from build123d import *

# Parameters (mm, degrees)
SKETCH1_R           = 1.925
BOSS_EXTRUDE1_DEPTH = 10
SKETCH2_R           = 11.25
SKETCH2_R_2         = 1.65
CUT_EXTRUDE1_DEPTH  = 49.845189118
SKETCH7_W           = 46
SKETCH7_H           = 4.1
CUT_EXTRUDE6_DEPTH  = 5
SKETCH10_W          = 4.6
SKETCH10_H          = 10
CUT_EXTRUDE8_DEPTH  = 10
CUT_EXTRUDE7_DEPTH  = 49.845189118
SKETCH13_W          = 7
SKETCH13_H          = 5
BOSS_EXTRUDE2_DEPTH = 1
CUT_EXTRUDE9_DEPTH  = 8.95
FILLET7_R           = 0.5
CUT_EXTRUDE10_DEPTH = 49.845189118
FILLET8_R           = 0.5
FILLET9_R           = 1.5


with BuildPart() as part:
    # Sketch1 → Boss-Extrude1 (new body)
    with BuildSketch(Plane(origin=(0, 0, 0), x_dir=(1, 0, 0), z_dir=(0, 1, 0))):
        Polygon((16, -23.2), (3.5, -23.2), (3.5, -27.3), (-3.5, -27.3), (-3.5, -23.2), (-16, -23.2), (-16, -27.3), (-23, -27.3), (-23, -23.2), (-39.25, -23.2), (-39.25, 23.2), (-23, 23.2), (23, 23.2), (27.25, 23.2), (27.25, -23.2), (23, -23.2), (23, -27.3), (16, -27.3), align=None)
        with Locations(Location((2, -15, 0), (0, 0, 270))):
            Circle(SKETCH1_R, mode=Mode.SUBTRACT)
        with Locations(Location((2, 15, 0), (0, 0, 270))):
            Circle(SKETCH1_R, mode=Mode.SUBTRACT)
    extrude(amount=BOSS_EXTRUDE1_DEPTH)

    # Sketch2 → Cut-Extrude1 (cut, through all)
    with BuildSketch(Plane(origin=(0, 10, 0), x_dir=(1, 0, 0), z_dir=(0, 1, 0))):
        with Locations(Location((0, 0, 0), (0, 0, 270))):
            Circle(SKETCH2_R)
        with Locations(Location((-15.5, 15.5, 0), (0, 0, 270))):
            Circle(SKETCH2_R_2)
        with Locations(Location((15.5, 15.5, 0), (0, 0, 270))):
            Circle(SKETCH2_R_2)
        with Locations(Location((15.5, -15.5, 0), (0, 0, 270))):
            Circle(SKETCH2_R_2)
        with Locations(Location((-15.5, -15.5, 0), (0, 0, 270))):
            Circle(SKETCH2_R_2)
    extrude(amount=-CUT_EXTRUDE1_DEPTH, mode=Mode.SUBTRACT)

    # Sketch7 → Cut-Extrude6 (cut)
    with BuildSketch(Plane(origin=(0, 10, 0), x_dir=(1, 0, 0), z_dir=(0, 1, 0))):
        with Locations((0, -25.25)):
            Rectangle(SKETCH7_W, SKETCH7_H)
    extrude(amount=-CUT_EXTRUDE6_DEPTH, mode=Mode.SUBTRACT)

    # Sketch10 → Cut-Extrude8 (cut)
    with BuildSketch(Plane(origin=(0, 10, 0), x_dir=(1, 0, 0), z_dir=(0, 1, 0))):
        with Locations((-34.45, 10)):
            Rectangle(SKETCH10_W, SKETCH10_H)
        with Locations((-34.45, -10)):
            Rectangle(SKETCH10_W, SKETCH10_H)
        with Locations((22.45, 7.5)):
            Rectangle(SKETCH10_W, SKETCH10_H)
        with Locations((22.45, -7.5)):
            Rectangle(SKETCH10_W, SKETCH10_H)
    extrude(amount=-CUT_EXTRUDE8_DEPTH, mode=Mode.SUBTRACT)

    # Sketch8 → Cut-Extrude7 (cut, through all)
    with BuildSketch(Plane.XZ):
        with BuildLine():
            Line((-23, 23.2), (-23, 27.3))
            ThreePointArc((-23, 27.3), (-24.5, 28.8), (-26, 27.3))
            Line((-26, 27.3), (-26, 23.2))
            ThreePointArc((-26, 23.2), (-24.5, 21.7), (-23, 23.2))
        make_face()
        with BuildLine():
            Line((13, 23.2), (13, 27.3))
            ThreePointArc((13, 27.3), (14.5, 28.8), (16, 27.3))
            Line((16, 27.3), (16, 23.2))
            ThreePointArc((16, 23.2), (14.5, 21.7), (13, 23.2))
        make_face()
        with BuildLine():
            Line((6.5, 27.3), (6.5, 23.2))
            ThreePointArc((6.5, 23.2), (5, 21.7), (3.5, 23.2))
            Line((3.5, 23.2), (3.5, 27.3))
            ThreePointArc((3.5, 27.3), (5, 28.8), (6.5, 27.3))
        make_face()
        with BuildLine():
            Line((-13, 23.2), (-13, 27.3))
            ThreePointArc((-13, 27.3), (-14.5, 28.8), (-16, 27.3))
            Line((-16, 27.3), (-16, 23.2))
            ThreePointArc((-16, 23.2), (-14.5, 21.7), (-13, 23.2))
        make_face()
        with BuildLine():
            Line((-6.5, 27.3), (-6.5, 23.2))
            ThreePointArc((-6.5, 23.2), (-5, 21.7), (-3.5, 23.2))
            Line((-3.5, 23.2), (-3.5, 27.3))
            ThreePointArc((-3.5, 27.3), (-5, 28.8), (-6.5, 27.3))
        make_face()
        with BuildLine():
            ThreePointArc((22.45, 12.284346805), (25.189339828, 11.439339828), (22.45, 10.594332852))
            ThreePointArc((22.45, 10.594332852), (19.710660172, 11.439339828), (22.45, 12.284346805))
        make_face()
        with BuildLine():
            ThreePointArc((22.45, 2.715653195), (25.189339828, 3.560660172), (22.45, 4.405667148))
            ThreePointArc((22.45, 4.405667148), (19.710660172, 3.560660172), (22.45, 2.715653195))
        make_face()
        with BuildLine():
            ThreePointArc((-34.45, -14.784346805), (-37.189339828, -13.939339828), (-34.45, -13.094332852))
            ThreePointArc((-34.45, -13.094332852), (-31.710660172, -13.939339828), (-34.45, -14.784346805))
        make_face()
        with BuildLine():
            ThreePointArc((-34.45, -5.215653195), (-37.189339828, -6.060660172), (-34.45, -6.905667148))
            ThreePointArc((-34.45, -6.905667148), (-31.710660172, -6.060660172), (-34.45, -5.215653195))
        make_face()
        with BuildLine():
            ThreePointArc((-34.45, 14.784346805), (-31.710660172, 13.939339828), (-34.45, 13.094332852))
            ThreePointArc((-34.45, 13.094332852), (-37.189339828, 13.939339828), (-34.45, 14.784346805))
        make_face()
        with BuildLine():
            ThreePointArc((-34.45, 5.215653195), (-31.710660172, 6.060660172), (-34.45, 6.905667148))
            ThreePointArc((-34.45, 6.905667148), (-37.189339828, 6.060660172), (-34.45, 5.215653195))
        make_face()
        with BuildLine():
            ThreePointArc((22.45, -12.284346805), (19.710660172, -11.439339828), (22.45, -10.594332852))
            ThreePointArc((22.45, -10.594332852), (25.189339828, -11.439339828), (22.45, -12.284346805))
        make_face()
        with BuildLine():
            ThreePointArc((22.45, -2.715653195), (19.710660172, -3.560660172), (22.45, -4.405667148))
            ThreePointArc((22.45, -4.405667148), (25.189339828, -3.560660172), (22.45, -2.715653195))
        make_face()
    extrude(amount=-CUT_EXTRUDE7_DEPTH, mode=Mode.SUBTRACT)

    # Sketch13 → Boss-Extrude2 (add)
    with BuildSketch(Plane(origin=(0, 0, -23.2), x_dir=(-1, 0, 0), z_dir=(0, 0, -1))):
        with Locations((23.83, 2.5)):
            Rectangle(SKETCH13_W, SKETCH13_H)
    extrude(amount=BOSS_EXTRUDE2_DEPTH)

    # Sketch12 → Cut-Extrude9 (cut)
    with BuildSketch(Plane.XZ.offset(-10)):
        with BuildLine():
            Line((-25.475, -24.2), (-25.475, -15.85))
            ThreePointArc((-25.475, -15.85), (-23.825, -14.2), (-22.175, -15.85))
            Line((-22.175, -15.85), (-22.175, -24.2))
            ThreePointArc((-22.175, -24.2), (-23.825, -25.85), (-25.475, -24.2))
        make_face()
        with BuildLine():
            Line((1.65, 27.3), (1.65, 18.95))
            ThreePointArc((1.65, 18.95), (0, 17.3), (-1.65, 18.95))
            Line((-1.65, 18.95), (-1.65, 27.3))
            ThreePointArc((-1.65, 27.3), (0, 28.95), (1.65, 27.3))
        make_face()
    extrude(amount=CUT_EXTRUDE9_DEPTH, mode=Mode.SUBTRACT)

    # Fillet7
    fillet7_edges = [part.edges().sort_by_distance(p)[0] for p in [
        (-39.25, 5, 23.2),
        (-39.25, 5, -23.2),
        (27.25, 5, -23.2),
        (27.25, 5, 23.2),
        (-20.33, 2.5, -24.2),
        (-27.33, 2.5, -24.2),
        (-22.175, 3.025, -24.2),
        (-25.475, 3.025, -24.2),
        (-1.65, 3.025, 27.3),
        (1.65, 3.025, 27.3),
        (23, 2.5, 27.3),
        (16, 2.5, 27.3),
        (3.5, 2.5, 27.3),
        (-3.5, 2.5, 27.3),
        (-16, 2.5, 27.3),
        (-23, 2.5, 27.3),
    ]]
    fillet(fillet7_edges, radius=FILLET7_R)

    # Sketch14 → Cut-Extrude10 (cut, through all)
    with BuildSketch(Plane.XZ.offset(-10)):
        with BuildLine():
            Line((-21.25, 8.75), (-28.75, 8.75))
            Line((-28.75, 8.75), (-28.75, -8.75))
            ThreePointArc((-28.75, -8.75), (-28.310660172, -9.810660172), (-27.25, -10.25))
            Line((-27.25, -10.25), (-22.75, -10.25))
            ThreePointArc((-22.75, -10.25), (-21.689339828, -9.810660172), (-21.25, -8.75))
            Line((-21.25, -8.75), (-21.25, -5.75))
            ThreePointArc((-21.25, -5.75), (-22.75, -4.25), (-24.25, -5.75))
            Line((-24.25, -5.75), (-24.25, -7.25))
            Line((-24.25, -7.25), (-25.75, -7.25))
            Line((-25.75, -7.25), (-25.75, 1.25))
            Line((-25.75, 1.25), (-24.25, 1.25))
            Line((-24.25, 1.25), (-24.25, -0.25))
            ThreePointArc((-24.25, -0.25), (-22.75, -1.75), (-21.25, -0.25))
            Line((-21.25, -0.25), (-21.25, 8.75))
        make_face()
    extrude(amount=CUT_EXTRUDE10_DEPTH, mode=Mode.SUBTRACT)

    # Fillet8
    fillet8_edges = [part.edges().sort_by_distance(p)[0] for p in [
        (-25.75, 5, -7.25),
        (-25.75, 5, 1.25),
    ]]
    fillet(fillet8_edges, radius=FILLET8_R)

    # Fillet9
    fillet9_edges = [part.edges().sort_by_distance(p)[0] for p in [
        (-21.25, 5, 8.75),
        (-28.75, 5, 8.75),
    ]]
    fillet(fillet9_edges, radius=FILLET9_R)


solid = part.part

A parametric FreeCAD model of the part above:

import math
import FreeCAD as App
import Part
import Sketcher

V = App.Vector


def edges_at(feature, points):
    """Names of the edges that pass closest to the given points."""
    edges = feature.Shape.Edges
    near = lambda p: min(range(len(edges)), key=lambda i: edges[i].distToShape(Part.Vertex(*p))[0])
    return sorted({f"Edge{near(p) + 1}" for p in points})

doc = App.newDocument("Part")
body = doc.addObject("PartDesign::Body", "Body")

# Sketch on XZ plane
sketch1 = body.newObject("Sketcher::SketchObject", "Sketch")
sketch1.AttachmentSupport = (doc.getObject("XZ_Plane"), [""])
sketch1.MapMode = "FlatFace"
sketch1.addGeometry(Part.LineSegment(V(3.5, 23.2, 0), V(16, 23.2, 0)), False)
sketch1.addGeometry(Part.LineSegment(V(16, 23.2, 0), V(16, 27.3, 0)), False)
sketch1.addGeometry(Part.LineSegment(V(16, 27.3, 0), V(23, 27.3, 0)), False)
sketch1.addGeometry(Part.LineSegment(V(23, 27.3, 0), V(23, 23.2, 0)), False)
sketch1.addGeometry(Part.LineSegment(V(23, 23.2, 0), V(27.2, 23.2, 0)), False)
sketch1.addGeometry(Part.LineSegment(V(27.2, 23.2, 0), V(27.2, -23.2, 0)), False)
sketch1.addGeometry(Part.LineSegment(V(27.2, -23.2, 0), V(-39.2, -23.2, 0)), False)
sketch1.addGeometry(Part.LineSegment(V(-39.2, -23.2, 0), V(-39.2, 23.2, 0)), False)
sketch1.addGeometry(Part.LineSegment(V(-39.2, 23.2, 0), V(-23, 23.2, 0)), False)
sketch1.addGeometry(Part.LineSegment(V(-23, 23.2, 0), V(-23, 27.3, 0)), False)
sketch1.addGeometry(Part.LineSegment(V(-23, 27.3, 0), V(-16, 27.3, 0)), False)
sketch1.addGeometry(Part.LineSegment(V(-16, 27.3, 0), V(-16, 23.2, 0)), False)
sketch1.addGeometry(Part.LineSegment(V(-16, 23.2, 0), V(-3.5, 23.2, 0)), False)
sketch1.addGeometry(Part.LineSegment(V(-3.5, 23.2, 0), V(-3.5, 27.3, 0)), False)
sketch1.addGeometry(Part.LineSegment(V(-3.5, 27.3, 0), V(3.5, 27.3, 0)), False)
sketch1.addGeometry(Part.LineSegment(V(3.5, 27.3, 0), V(3.5, 23.2, 0)), False)
sketch1.addGeometry(Part.Circle(V(2, 15, 0), V(0, 0, 1), 1.9), False)
sketch1.addGeometry(Part.Circle(V(2, -15, 0), V(0, 0, 1), 1.9), False)
sketch1.addConstraint(Sketcher.Constraint("Coincident", 0, 2, 1, 1))
sketch1.addConstraint(Sketcher.Constraint("Coincident", 1, 2, 2, 1))
sketch1.addConstraint(Sketcher.Constraint("Coincident", 2, 2, 3, 1))
sketch1.addConstraint(Sketcher.Constraint("Coincident", 3, 2, 4, 1))
sketch1.addConstraint(Sketcher.Constraint("Coincident", 4, 2, 5, 1))
sketch1.addConstraint(Sketcher.Constraint("Coincident", 5, 2, 6, 1))
sketch1.addConstraint(Sketcher.Constraint("Coincident", 6, 2, 7, 1))
sketch1.addConstraint(Sketcher.Constraint("Coincident", 7, 2, 8, 1))
sketch1.addConstraint(Sketcher.Constraint("Coincident", 8, 2, 9, 1))
sketch1.addConstraint(Sketcher.Constraint("Coincident", 9, 2, 10, 1))
sketch1.addConstraint(Sketcher.Constraint("Coincident", 10, 2, 11, 1))
sketch1.addConstraint(Sketcher.Constraint("Coincident", 11, 2, 12, 1))
sketch1.addConstraint(Sketcher.Constraint("Coincident", 12, 2, 13, 1))
sketch1.addConstraint(Sketcher.Constraint("Coincident", 13, 2, 14, 1))
sketch1.addConstraint(Sketcher.Constraint("Coincident", 14, 2, 15, 1))
sketch1.addConstraint(Sketcher.Constraint("Coincident", 15, 2, 0, 1))
sketch1.addConstraint(Sketcher.Constraint("Horizontal", 0))
sketch1.addConstraint(Sketcher.Constraint("Vertical", 1))
sketch1.addConstraint(Sketcher.Constraint("Horizontal", 2))
sketch1.addConstraint(Sketcher.Constraint("Vertical", 3))
sketch1.addConstraint(Sketcher.Constraint("Horizontal", 4))
sketch1.addConstraint(Sketcher.Constraint("Vertical", 5))
sketch1.addConstraint(Sketcher.Constraint("Horizontal", 6))
sketch1.addConstraint(Sketcher.Constraint("Vertical", 7))
sketch1.addConstraint(Sketcher.Constraint("Horizontal", 8))
sketch1.addConstraint(Sketcher.Constraint("Vertical", 9))
sketch1.addConstraint(Sketcher.Constraint("Horizontal", 10))
sketch1.addConstraint(Sketcher.Constraint("Vertical", 11))
sketch1.addConstraint(Sketcher.Constraint("Horizontal", 12))
sketch1.addConstraint(Sketcher.Constraint("Vertical", 13))
sketch1.addConstraint(Sketcher.Constraint("Horizontal", 14))
sketch1.addConstraint(Sketcher.Constraint("Vertical", 15))
sketch1.addConstraint(Sketcher.Constraint("Equal", 16, 17))
sketch1.addConstraint(Sketcher.Constraint("Symmetric", 3, 2, 8, 2, -2))
sketch1.addConstraint(Sketcher.Constraint("Symmetric", 1, 2, 10, 2, -2))
sketch1.addConstraint(Sketcher.Constraint("Symmetric", 12, 2, 15, 2, -2))
sketch1.addConstraint(Sketcher.Constraint("Symmetric", 16, 3, 17, 3, -1))
sketch1.addConstraint(Sketcher.Constraint("Horizontal", 0, 2, 3, 2))
sketch1.addConstraint(Sketcher.Constraint("Horizontal", 10, 2, 13, 2))
sketch1.addConstraint(Sketcher.Constraint("Equal", 10, 14))
sketch1.addConstraint(Sketcher.Constraint("Diameter", 16, 3.85))
sketch1.addConstraint(Sketcher.Constraint("DistanceX", 2, 1, 2, 2, 7.0))
sketch1.addConstraint(Sketcher.Constraint("DistanceX", 0, 1, 0, 2, 12.5))
sketch1.addConstraint(Sketcher.Constraint("DistanceX", 6, 2, 6, 1, 66.5))
sketch1.addConstraint(Sketcher.Constraint("DistanceY", 1, 1, 1, 2, 4.1))
sketch1.addConstraint(Sketcher.Constraint("DistanceY", 5, 2, 5, 1, 46.4))
sketch1.addConstraint(Sketcher.Constraint("DistanceX", -1, 1, 16, 3, 2.0))
sketch1.addConstraint(Sketcher.Constraint("DistanceY", -1, 1, 16, 3, 15.0))
sketch1.addConstraint(Sketcher.Constraint("DistanceX", 4, 1, 4, 2, 4.25))
sketch1.addConstraint(Sketcher.Constraint("DistanceY", -1, 1, 0, 2, 23.2))
pad1 = body.newObject("PartDesign::Pad", "Pad")
pad1.Profile = sketch1
pad1.Length = 10
pad1.Reversed = True

# Sketch on XZ plane
sketch2 = body.newObject("Sketcher::SketchObject", "Sketch001")
sketch2.AttachmentSupport = (doc.getObject("XZ_Plane"), [""])
sketch2.MapMode = "FlatFace"
sketch2.AttachmentOffset = App.Placement(V(0, 0, -10), App.Rotation())
sketch2.addGeometry(Part.Circle(V(0, 0, 0), V(0, 0, 1), 11.2), False)
sketch2.addGeometry(Part.Circle(V(-15.5, -15.5, 0), V(0, 0, 1), 1.6), False)
sketch2.addGeometry(Part.Circle(V(15.5, -15.5, 0), V(0, 0, 1), 1.6), False)
sketch2.addGeometry(Part.Circle(V(15.5, 15.5, 0), V(0, 0, 1), 1.6), False)
sketch2.addGeometry(Part.Circle(V(-15.5, 15.5, 0), V(0, 0, 1), 1.6), False)
sketch2.addConstraint(Sketcher.Constraint("Coincident", 0, 3, -1, 1))
sketch2.addConstraint(Sketcher.Constraint("Equal", 1, 2))
sketch2.addConstraint(Sketcher.Constraint("Equal", 2, 3))
sketch2.addConstraint(Sketcher.Constraint("Equal", 3, 4))
sketch2.addConstraint(Sketcher.Constraint("Symmetric", 1, 3, 3, 3, -1, 1))
sketch2.addConstraint(Sketcher.Constraint("Symmetric", 2, 3, 4, 3, -1, 1))
sketch2.addConstraint(Sketcher.Constraint("Symmetric", 1, 3, 2, 3, -2))
sketch2.addConstraint(Sketcher.Constraint("Diameter", 0, 22.5))
sketch2.addConstraint(Sketcher.Constraint("Diameter", 1, 3.3))
sketch2.addConstraint(Sketcher.Constraint("DistanceX", 1, 3, 2, 3, 31.0))
sketch2.addConstraint(Sketcher.Constraint("DistanceY", 2, 3, 3, 3, 31.0))
pocket1 = body.newObject("PartDesign::Pocket", "Pocket")
pocket1.Profile = sketch2
pocket1.Type = "ThroughAll"
pocket1.Reversed = True

# Sketch on XZ plane
sketch3 = body.newObject("Sketcher::SketchObject", "Sketch002")
sketch3.AttachmentSupport = (doc.getObject("XZ_Plane"), [""])
sketch3.MapMode = "FlatFace"
sketch3.AttachmentOffset = App.Placement(V(0, 0, -10), App.Rotation())
sketch3.addGeometry(Part.LineSegment(V(-23, 23.2, 0), V(-23, 27.3, 0)), False)
sketch3.addGeometry(Part.LineSegment(V(-23, 27.3, 0), V(23, 27.3, 0)), False)
sketch3.addGeometry(Part.LineSegment(V(23, 27.3, 0), V(23, 23.2, 0)), False)
sketch3.addGeometry(Part.LineSegment(V(23, 23.2, 0), V(-23, 23.2, 0)), False)
sketch3.addConstraint(Sketcher.Constraint("Coincident", 0, 2, 1, 1))
sketch3.addConstraint(Sketcher.Constraint("Coincident", 1, 2, 2, 1))
sketch3.addConstraint(Sketcher.Constraint("Coincident", 2, 2, 3, 1))
sketch3.addConstraint(Sketcher.Constraint("Coincident", 3, 2, 0, 1))
sketch3.addConstraint(Sketcher.Constraint("Vertical", 0))
sketch3.addConstraint(Sketcher.Constraint("Horizontal", 1))
sketch3.addConstraint(Sketcher.Constraint("Vertical", 2))
sketch3.addConstraint(Sketcher.Constraint("Horizontal", 3))
sketch3.addConstraint(Sketcher.Constraint("DistanceX", 1, 1, 1, 2, 46.0))
sketch3.addConstraint(Sketcher.Constraint("DistanceY", 0, 1, 0, 2, 4.1))
sketch3.addConstraint(Sketcher.Constraint("DistanceX", 0, 2, -1, 1, 23.0))
sketch3.addConstraint(Sketcher.Constraint("DistanceY", -1, 1, 0, 2, 27.3))
pocket2 = body.newObject("PartDesign::Pocket", "Pocket001")
pocket2.Profile = sketch3
pocket2.Length = 5
pocket2.Reversed = True

# Sketch on XZ plane
sketch4 = body.newObject("Sketcher::SketchObject", "Sketch003")
sketch4.AttachmentSupport = (doc.getObject("XZ_Plane"), [""])
sketch4.MapMode = "FlatFace"
sketch4.AttachmentOffset = App.Placement(V(0, 0, -10), App.Rotation())
sketch4.addGeometry(Part.LineSegment(V(-36.8, -15, 0), V(-36.8, -5, 0)), False)
sketch4.addGeometry(Part.LineSegment(V(-36.8, -5, 0), V(-32.1, -5, 0)), False)
sketch4.addGeometry(Part.LineSegment(V(-32.1, -5, 0), V(-32.1, -15, 0)), False)
sketch4.addGeometry(Part.LineSegment(V(-32.1, -15, 0), V(-36.8, -15, 0)), False)
sketch4.addGeometry(Part.LineSegment(V(-36.8, 5, 0), V(-36.8, 15, 0)), False)
sketch4.addGeometry(Part.LineSegment(V(-36.8, 15, 0), V(-32.1, 15, 0)), False)
sketch4.addGeometry(Part.LineSegment(V(-32.1, 15, 0), V(-32.1, 5, 0)), False)
sketch4.addGeometry(Part.LineSegment(V(-32.1, 5, 0), V(-36.8, 5, 0)), False)
sketch4.addGeometry(Part.LineSegment(V(20.1, -12.5, 0), V(20.1, -2.5, 0)), False)
sketch4.addGeometry(Part.LineSegment(V(20.1, -2.5, 0), V(24.8, -2.5, 0)), False)
sketch4.addGeometry(Part.LineSegment(V(24.8, -2.5, 0), V(24.8, -12.5, 0)), False)
sketch4.addGeometry(Part.LineSegment(V(24.8, -12.5, 0), V(20.1, -12.5, 0)), False)
sketch4.addGeometry(Part.LineSegment(V(20.1, 2.5, 0), V(20.1, 12.5, 0)), False)
sketch4.addGeometry(Part.LineSegment(V(20.1, 12.5, 0), V(24.8, 12.5, 0)), False)
sketch4.addGeometry(Part.LineSegment(V(24.8, 12.5, 0), V(24.8, 2.5, 0)), False)
sketch4.addGeometry(Part.LineSegment(V(24.8, 2.5, 0), V(20.1, 2.5, 0)), False)
sketch4.addConstraint(Sketcher.Constraint("Coincident", 0, 2, 1, 1))
sketch4.addConstraint(Sketcher.Constraint("Coincident", 1, 2, 2, 1))
sketch4.addConstraint(Sketcher.Constraint("Coincident", 2, 2, 3, 1))
sketch4.addConstraint(Sketcher.Constraint("Coincident", 3, 2, 0, 1))
sketch4.addConstraint(Sketcher.Constraint("Coincident", 4, 2, 5, 1))
sketch4.addConstraint(Sketcher.Constraint("Coincident", 5, 2, 6, 1))
sketch4.addConstraint(Sketcher.Constraint("Coincident", 6, 2, 7, 1))
sketch4.addConstraint(Sketcher.Constraint("Coincident", 7, 2, 4, 1))
sketch4.addConstraint(Sketcher.Constraint("Coincident", 8, 2, 9, 1))
sketch4.addConstraint(Sketcher.Constraint("Coincident", 9, 2, 10, 1))
sketch4.addConstraint(Sketcher.Constraint("Coincident", 10, 2, 11, 1))
sketch4.addConstraint(Sketcher.Constraint("Coincident", 11, 2, 8, 1))
sketch4.addConstraint(Sketcher.Constraint("Coincident", 12, 2, 13, 1))
sketch4.addConstraint(Sketcher.Constraint("Coincident", 13, 2, 14, 1))
sketch4.addConstraint(Sketcher.Constraint("Coincident", 14, 2, 15, 1))
sketch4.addConstraint(Sketcher.Constraint("Coincident", 15, 2, 12, 1))
sketch4.addConstraint(Sketcher.Constraint("Vertical", 0))
sketch4.addConstraint(Sketcher.Constraint("Horizontal", 1))
sketch4.addConstraint(Sketcher.Constraint("Vertical", 2))
sketch4.addConstraint(Sketcher.Constraint("Horizontal", 3))
sketch4.addConstraint(Sketcher.Constraint("Vertical", 4))
sketch4.addConstraint(Sketcher.Constraint("Horizontal", 5))
sketch4.addConstraint(Sketcher.Constraint("Vertical", 6))
sketch4.addConstraint(Sketcher.Constraint("Horizontal", 7))
sketch4.addConstraint(Sketcher.Constraint("Vertical", 8))
sketch4.addConstraint(Sketcher.Constraint("Horizontal", 9))
sketch4.addConstraint(Sketcher.Constraint("Vertical", 10))
sketch4.addConstraint(Sketcher.Constraint("Horizontal", 11))
sketch4.addConstraint(Sketcher.Constraint("Vertical", 12))
sketch4.addConstraint(Sketcher.Constraint("Horizontal", 13))
sketch4.addConstraint(Sketcher.Constraint("Vertical", 14))
sketch4.addConstraint(Sketcher.Constraint("Horizontal", 15))
sketch4.addConstraint(Sketcher.Constraint("Symmetric", 3, 2, 4, 2, -1))
sketch4.addConstraint(Sketcher.Constraint("Symmetric", 1, 2, 6, 2, -1))
sketch4.addConstraint(Sketcher.Constraint("Symmetric", 11, 2, 12, 2, -1))
sketch4.addConstraint(Sketcher.Constraint("Symmetric", 9, 2, 14, 2, -1))
sketch4.addConstraint(Sketcher.Constraint("Equal", 7, 9))
sketch4.addConstraint(Sketcher.Constraint("Equal", 6, 8))
sketch4.addConstraint(Sketcher.Constraint("DistanceY", 0, 1, 0, 2, 10.0))
sketch4.addConstraint(Sketcher.Constraint("DistanceX", 1, 1, 1, 2, 4.6))
sketch4.addConstraint(Sketcher.Constraint("DistanceY", 0, 2, -1, 1, 5.0))
sketch4.addConstraint(Sketcher.Constraint("DistanceY", 8, 2, 12, 2, 15.0))
sketch4.addConstraint(Sketcher.Constraint("DistanceX", 1, 2, 8, 2, 52.3))
sketch4.addConstraint(Sketcher.Constraint("DistanceX", 0, 2, -1, 1, 36.75))
pocket3 = body.newObject("PartDesign::Pocket", "Pocket002")
pocket3.Profile = sketch4
pocket3.Length = 10
pocket3.Reversed = True

# Sketch on XZ plane
sketch5 = body.newObject("Sketcher::SketchObject", "Sketch004")
sketch5.AttachmentSupport = (doc.getObject("XZ_Plane"), [""])
sketch5.MapMode = "FlatFace"
sketch5.addGeometry(Part.LineSegment(V(-23, 23.2, 0), V(-23, 27.3, 0)), False)
sketch5.addGeometry(Part.ArcOfCircle(Part.Circle(V(-24.5, 27.3, 0), V(0, 0, 1), 1.5), math.radians(0), math.radians(180)), False)
sketch5.addGeometry(Part.LineSegment(V(-26, 27.3, 0), V(-26, 23.2, 0)), False)
sketch5.addGeometry(Part.ArcOfCircle(Part.Circle(V(-24.5, 23.2, 0), V(0, 0, 1), 1.5), math.radians(180), math.radians(360)), False)
sketch5.addGeometry(Part.LineSegment(V(13, 27.3, 0), V(13, 23.2, 0)), False)
sketch5.addGeometry(Part.ArcOfCircle(Part.Circle(V(14.5, 23.2, 0), V(0, 0, 1), 1.5), math.radians(180), math.radians(360)), False)
sketch5.addGeometry(Part.LineSegment(V(16, 23.2, 0), V(16, 27.3, 0)), False)
sketch5.addGeometry(Part.ArcOfCircle(Part.Circle(V(14.5, 27.3, 0), V(0, 0, 1), 1.5), math.radians(0), math.radians(180)), False)
sketch5.addGeometry(Part.LineSegment(V(6.5, 23.2, 0), V(6.5, 27.3, 0)), False)
sketch5.addGeometry(Part.ArcOfCircle(Part.Circle(V(5, 27.3, 0), V(0, 0, 1), 1.5), math.radians(0), math.radians(180)), False)
sketch5.addGeometry(Part.LineSegment(V(3.5, 27.3, 0), V(3.5, 23.2, 0)), False)
sketch5.addGeometry(Part.ArcOfCircle(Part.Circle(V(5, 23.2, 0), V(0, 0, 1), 1.5), math.radians(180), math.radians(360)), False)
sketch5.addGeometry(Part.LineSegment(V(-13, 23.2, 0), V(-13, 27.3, 0)), False)
sketch5.addGeometry(Part.ArcOfCircle(Part.Circle(V(-14.5, 27.3, 0), V(0, 0, 1), 1.5), math.radians(0), math.radians(180)), False)
sketch5.addGeometry(Part.LineSegment(V(-16, 27.3, 0), V(-16, 23.2, 0)), False)
sketch5.addGeometry(Part.ArcOfCircle(Part.Circle(V(-14.5, 23.2, 0), V(0, 0, 1), 1.5), math.radians(180), math.radians(360)), False)
sketch5.addGeometry(Part.LineSegment(V(-6.5, 27.3, 0), V(-6.5, 23.2, 0)), False)
sketch5.addGeometry(Part.ArcOfCircle(Part.Circle(V(-5, 23.2, 0), V(0, 0, 1), 1.5), math.radians(180), math.radians(360)), False)
sketch5.addGeometry(Part.LineSegment(V(-3.5, 23.2, 0), V(-3.5, 27.3, 0)), False)
sketch5.addGeometry(Part.ArcOfCircle(Part.Circle(V(-5, 27.3, 0), V(0, 0, 1), 1.5), math.radians(0), math.radians(180)), False)
sketch5.addGeometry(Part.ArcOfCircle(Part.Circle(V(23.7, 11.4, 0), V(0, 0, 1), 1.5), math.radians(-146), math.radians(146)), False)
sketch5.addGeometry(Part.ArcOfCircle(Part.Circle(V(21.2, 11.4, 0), V(0, 0, 1), 1.5), math.radians(34), math.radians(326)), False)
sketch5.addGeometry(Part.ArcOfCircle(Part.Circle(V(23.7, 3.6, 0), V(0, 0, 1), 1.5), math.radians(-146), math.radians(146)), False)
sketch5.addGeometry(Part.ArcOfCircle(Part.Circle(V(21.2, 3.6, 0), V(0, 0, 1), 1.5), math.radians(34), math.radians(326)), False)
sketch5.addGeometry(Part.ArcOfCircle(Part.Circle(V(-35.7, -13.9, 0), V(0, 0, 1), 1.5), math.radians(34), math.radians(326)), False)
sketch5.addGeometry(Part.ArcOfCircle(Part.Circle(V(-33.2, -13.9, 0), V(0, 0, 1), 1.5), math.radians(-146), math.radians(146)), False)
sketch5.addGeometry(Part.ArcOfCircle(Part.Circle(V(-35.7, -6.1, 0), V(0, 0, 1), 1.5), math.radians(34), math.radians(326)), False)
sketch5.addGeometry(Part.ArcOfCircle(Part.Circle(V(-33.2, -6.1, 0), V(0, 0, 1), 1.5), math.radians(-146), math.radians(146)), False)
sketch5.addGeometry(Part.ArcOfCircle(Part.Circle(V(-33.2, 13.9, 0), V(0, 0, 1), 1.5), math.radians(-146), math.radians(146)), False)
sketch5.addGeometry(Part.ArcOfCircle(Part.Circle(V(-35.7, 13.9, 0), V(0, 0, 1), 1.5), math.radians(34), math.radians(326)), False)
sketch5.addGeometry(Part.ArcOfCircle(Part.Circle(V(-33.2, 6.1, 0), V(0, 0, 1), 1.5), math.radians(-146), math.radians(146)), False)
sketch5.addGeometry(Part.ArcOfCircle(Part.Circle(V(-35.7, 6.1, 0), V(0, 0, 1), 1.5), math.radians(34), math.radians(326)), False)
sketch5.addGeometry(Part.ArcOfCircle(Part.Circle(V(21.2, -11.4, 0), V(0, 0, 1), 1.5), math.radians(34), math.radians(326)), False)
sketch5.addGeometry(Part.ArcOfCircle(Part.Circle(V(23.7, -11.4, 0), V(0, 0, 1), 1.5), math.radians(-146), math.radians(146)), False)
sketch5.addGeometry(Part.ArcOfCircle(Part.Circle(V(21.2, -3.6, 0), V(0, 0, 1), 1.5), math.radians(34), math.radians(326)), False)
sketch5.addGeometry(Part.ArcOfCircle(Part.Circle(V(23.7, -3.6, 0), V(0, 0, 1), 1.5), math.radians(-146), math.radians(146)), False)
sketch5.addConstraint(Sketcher.Constraint("Tangent", 0, 2, 1, 1))
sketch5.addConstraint(Sketcher.Constraint("Tangent", 1, 2, 2, 1))
sketch5.addConstraint(Sketcher.Constraint("Tangent", 2, 2, 3, 1))
sketch5.addConstraint(Sketcher.Constraint("Tangent", 3, 2, 0, 1))
sketch5.addConstraint(Sketcher.Constraint("Tangent", 4, 2, 5, 1))
sketch5.addConstraint(Sketcher.Constraint("Tangent", 5, 2, 6, 1))
sketch5.addConstraint(Sketcher.Constraint("Tangent", 6, 2, 7, 1))
sketch5.addConstraint(Sketcher.Constraint("Tangent", 7, 2, 4, 1))
sketch5.addConstraint(Sketcher.Constraint("Tangent", 8, 2, 9, 1))
sketch5.addConstraint(Sketcher.Constraint("Tangent", 9, 2, 10, 1))
sketch5.addConstraint(Sketcher.Constraint("Tangent", 10, 2, 11, 1))
sketch5.addConstraint(Sketcher.Constraint("Tangent", 11, 2, 8, 1))
sketch5.addConstraint(Sketcher.Constraint("Tangent", 12, 2, 13, 1))
sketch5.addConstraint(Sketcher.Constraint("Tangent", 13, 2, 14, 1))
sketch5.addConstraint(Sketcher.Constraint("Tangent", 14, 2, 15, 1))
sketch5.addConstraint(Sketcher.Constraint("Tangent", 15, 2, 12, 1))
sketch5.addConstraint(Sketcher.Constraint("Tangent", 16, 2, 17, 1))
sketch5.addConstraint(Sketcher.Constraint("Tangent", 17, 2, 18, 1))
sketch5.addConstraint(Sketcher.Constraint("Tangent", 18, 2, 19, 1))
sketch5.addConstraint(Sketcher.Constraint("Tangent", 19, 2, 16, 1))
sketch5.addConstraint(Sketcher.Constraint("Coincident", 20, 1, 21, 2))
sketch5.addConstraint(Sketcher.Constraint("Coincident", 21, 1, 20, 2))
sketch5.addConstraint(Sketcher.Constraint("Coincident", 22, 1, 23, 2))
sketch5.addConstraint(Sketcher.Constraint("Coincident", 23, 1, 22, 2))
sketch5.addConstraint(Sketcher.Constraint("Coincident", 24, 1, 25, 2))
sketch5.addConstraint(Sketcher.Constraint("Coincident", 25, 1, 24, 2))
sketch5.addConstraint(Sketcher.Constraint("Coincident", 26, 1, 27, 2))
sketch5.addConstraint(Sketcher.Constraint("Coincident", 27, 1, 26, 2))
sketch5.addConstraint(Sketcher.Constraint("Coincident", 28, 1, 29, 2))
sketch5.addConstraint(Sketcher.Constraint("Coincident", 29, 1, 28, 2))
sketch5.addConstraint(Sketcher.Constraint("Coincident", 30, 1, 31, 2))
sketch5.addConstraint(Sketcher.Constraint("Coincident", 31, 1, 30, 2))
sketch5.addConstraint(Sketcher.Constraint("Coincident", 32, 1, 33, 2))
sketch5.addConstraint(Sketcher.Constraint("Coincident", 33, 1, 32, 2))
sketch5.addConstraint(Sketcher.Constraint("Coincident", 34, 1, 35, 2))
sketch5.addConstraint(Sketcher.Constraint("Coincident", 35, 1, 34, 2))
sketch5.addConstraint(Sketcher.Constraint("Vertical", 0))
sketch5.addConstraint(Sketcher.Constraint("Vertical", 2))
sketch5.addConstraint(Sketcher.Constraint("Vertical", 4))
sketch5.addConstraint(Sketcher.Constraint("Vertical", 6))
sketch5.addConstraint(Sketcher.Constraint("Vertical", 8))
sketch5.addConstraint(Sketcher.Constraint("Vertical", 10))
sketch5.addConstraint(Sketcher.Constraint("Vertical", 12))
sketch5.addConstraint(Sketcher.Constraint("Vertical", 14))
sketch5.addConstraint(Sketcher.Constraint("Vertical", 16))
sketch5.addConstraint(Sketcher.Constraint("Vertical", 18))
sketch5.addConstraint(Sketcher.Constraint("Equal", 3, 5))
sketch5.addConstraint(Sketcher.Constraint("Equal", 7, 9))
sketch5.addConstraint(Sketcher.Constraint("Equal", 11, 13))
sketch5.addConstraint(Sketcher.Constraint("Equal", 15, 17))
sketch5.addConstraint(Sketcher.Constraint("Equal", 19, 20))
sketch5.addConstraint(Sketcher.Constraint("Equal", 20, 21))
sketch5.addConstraint(Sketcher.Constraint("Equal", 21, 22))
sketch5.addConstraint(Sketcher.Constraint("Equal", 22, 23))
sketch5.addConstraint(Sketcher.Constraint("Equal", 23, 24))
sketch5.addConstraint(Sketcher.Constraint("Equal", 24, 25))
sketch5.addConstraint(Sketcher.Constraint("Equal", 25, 26))
sketch5.addConstraint(Sketcher.Constraint("Equal", 26, 27))
sketch5.addConstraint(Sketcher.Constraint("Equal", 27, 28))
sketch5.addConstraint(Sketcher.Constraint("Equal", 28, 29))
sketch5.addConstraint(Sketcher.Constraint("Equal", 29, 30))
sketch5.addConstraint(Sketcher.Constraint("Equal", 30, 31))
sketch5.addConstraint(Sketcher.Constraint("Equal", 31, 32))
sketch5.addConstraint(Sketcher.Constraint("Equal", 32, 33))
sketch5.addConstraint(Sketcher.Constraint("Equal", 33, 34))
sketch5.addConstraint(Sketcher.Constraint("Equal", 34, 35))
sketch5.addConstraint(Sketcher.Constraint("Symmetric", 7, 3, 13, 3, -2))
sketch5.addConstraint(Sketcher.Constraint("Symmetric", 11, 3, 17, 3, -2))
sketch5.addConstraint(Sketcher.Constraint("Symmetric", 25, 3, 28, 3, -1))
sketch5.addConstraint(Sketcher.Constraint("Symmetric", 24, 3, 29, 3, -1))
sketch5.addConstraint(Sketcher.Constraint("Symmetric", 27, 3, 30, 3, -1))
sketch5.addConstraint(Sketcher.Constraint("Symmetric", 26, 3, 31, 3, -1))
sketch5.addConstraint(Sketcher.Constraint("Symmetric", 21, 3, 32, 3, -1))
sketch5.addConstraint(Sketcher.Constraint("Symmetric", 20, 3, 33, 3, -1))
sketch5.addConstraint(Sketcher.Constraint("Symmetric", 23, 3, 34, 3, -1))
sketch5.addConstraint(Sketcher.Constraint("Symmetric", 22, 3, 35, 3, -1))
sketch5.addConstraint(Sketcher.Constraint("Horizontal", 3, 3, 5, 3))
sketch5.addConstraint(Sketcher.Constraint("Horizontal", 1, 3, 7, 3))
sketch5.addConstraint(Sketcher.Constraint("Horizontal", 7, 3, 9, 3))
sketch5.addConstraint(Sketcher.Constraint("Horizontal", 5, 3, 11, 3))
sketch5.addConstraint(Sketcher.Constraint("Horizontal", 11, 3, 15, 3))
sketch5.addConstraint(Sketcher.Constraint("Horizontal", 13, 3, 19, 3))
sketch5.addConstraint(Sketcher.Constraint("Horizontal", 20, 3, 21, 3))
sketch5.addConstraint(Sketcher.Constraint("Horizontal", 22, 3, 23, 3))
sketch5.addConstraint(Sketcher.Constraint("Horizontal", 24, 3, 25, 3))
sketch5.addConstraint(Sketcher.Constraint("Horizontal", 26, 3, 27, 3))
sketch5.addConstraint(Sketcher.Constraint("Vertical", 20, 3, 22, 3))
sketch5.addConstraint(Sketcher.Constraint("Vertical", 21, 3, 23, 3))
sketch5.addConstraint(Sketcher.Constraint("Vertical", 24, 3, 26, 3))
sketch5.addConstraint(Sketcher.Constraint("Vertical", 25, 3, 27, 3))
sketch5.addConstraint(Sketcher.Constraint("Radius", 1, 1.5))
sketch5.addConstraint(Sketcher.Constraint("DistanceY", 0, 1, 0, 2, 4.1))
sketch5.addConstraint(Sketcher.Constraint("DistanceX", -1, 1, 9, 3, 5.0))
sketch5.addConstraint(Sketcher.Constraint("DistanceX", 0, 2, -1, 1, 23.0))
sketch5.addConstraint(Sketcher.Constraint("DistanceX", -1, 1, 4, 2, 13.0))
sketch5.addConstraint(Sketcher.Constraint("DistanceY", -1, 1, 1, 3, 27.3))
sketch5.addConstraint(Sketcher.Constraint("DistanceX", -1, 1, 20, 1, 22.45))
sketch5.addConstraint(Sketcher.Constraint("DistanceX", 24, 1, -1, 1, 34.45))
sketch5.addConstraint(Sketcher.Constraint("DistanceX", -1, 1, 20, 3, 23.68934))
sketch5.addConstraint(Sketcher.Constraint("DistanceY", -1, 1, 20, 3, 11.43934))
sketch5.addConstraint(Sketcher.Constraint("DistanceY", -1, 1, 22, 3, 3.56066))
sketch5.addConstraint(Sketcher.Constraint("DistanceX", 24, 3, -1, 1, 35.68934))
sketch5.addConstraint(Sketcher.Constraint("DistanceY", 24, 3, -1, 1, 13.93934))
sketch5.addConstraint(Sketcher.Constraint("DistanceY", 26, 3, -1, 1, 6.06066))
pocket4 = body.newObject("PartDesign::Pocket", "Pocket003")
pocket4.Profile = sketch5
pocket4.Type = "ThroughAll"

# Sketch on XY plane
sketch6 = body.newObject("Sketcher::SketchObject", "Sketch005")
sketch6.AttachmentSupport = (doc.getObject("XY_Plane"), [""])
sketch6.MapMode = "FlatFace"
sketch6.AttachmentOffset = App.Placement(V(0, 0, -23.2), App.Rotation())
sketch6.addGeometry(Part.LineSegment(V(-20, 5, 0), V(-20, 0, 0)), False)
sketch6.addGeometry(Part.LineSegment(V(-20, 0, 0), V(-27, 0, 0)), False)
sketch6.addGeometry(Part.LineSegment(V(-27, 0, 0), V(-27, 5, 0)), False)
sketch6.addGeometry(Part.LineSegment(V(-27, 5, 0), V(-20, 5, 0)), False)
sketch6.addConstraint(Sketcher.Constraint("Coincident", 0, 2, 1, 1))
sketch6.addConstraint(Sketcher.Constraint("Coincident", 1, 2, 2, 1))
sketch6.addConstraint(Sketcher.Constraint("Coincident", 2, 2, 3, 1))
sketch6.addConstraint(Sketcher.Constraint("Coincident", 3, 2, 0, 1))
sketch6.addConstraint(Sketcher.Constraint("Vertical", 0))
sketch6.addConstraint(Sketcher.Constraint("Horizontal", 1))
sketch6.addConstraint(Sketcher.Constraint("Vertical", 2))
sketch6.addConstraint(Sketcher.Constraint("Horizontal", 3))
sketch6.addConstraint(Sketcher.Constraint("PointOnObject", 0, 2, -1))
sketch6.addConstraint(Sketcher.Constraint("DistanceX", 1, 2, 1, 1, 7.0))
sketch6.addConstraint(Sketcher.Constraint("DistanceY", 0, 2, 0, 1, 5.0))
sketch6.addConstraint(Sketcher.Constraint("DistanceX", 0, 2, -1, 1, 20.33))
pad2 = body.newObject("PartDesign::Pad", "Pad001")
pad2.Profile = sketch6
pad2.Length = 1
pad2.Reversed = True

# Sketch on XZ plane
sketch7 = body.newObject("Sketcher::SketchObject", "Sketch006")
sketch7.AttachmentSupport = (doc.getObject("XZ_Plane"), [""])
sketch7.MapMode = "FlatFace"
sketch7.AttachmentOffset = App.Placement(V(0, 0, -10), App.Rotation())
sketch7.addGeometry(Part.LineSegment(V(-25.5, -15.8, 0), V(-25.5, -24.2, 0)), False)
sketch7.addGeometry(Part.ArcOfCircle(Part.Circle(V(-23.8, -24.2, 0), V(0, 0, 1), 1.6), math.radians(180), math.radians(360)), False)
sketch7.addGeometry(Part.LineSegment(V(-22.2, -24.2, 0), V(-22.2, -15.8, 0)), False)
sketch7.addGeometry(Part.ArcOfCircle(Part.Circle(V(-23.8, -15.8, 0), V(0, 0, 1), 1.6), math.radians(0), math.radians(180)), False)
sketch7.addGeometry(Part.LineSegment(V(1.6, 18.9, 0), V(1.6, 27.3, 0)), False)
sketch7.addGeometry(Part.ArcOfCircle(Part.Circle(V(0, 27.3, 0), V(0, 0, 1), 1.6), math.radians(0), math.radians(180)), False)
sketch7.addGeometry(Part.LineSegment(V(-1.6, 27.3, 0), V(-1.6, 18.9, 0)), False)
sketch7.addGeometry(Part.ArcOfCircle(Part.Circle(V(0, 18.9, 0), V(0, 0, 1), 1.6), math.radians(180), math.radians(360)), False)
sketch7.addConstraint(Sketcher.Constraint("Tangent", 0, 2, 1, 1))
sketch7.addConstraint(Sketcher.Constraint("Tangent", 1, 2, 2, 1))
sketch7.addConstraint(Sketcher.Constraint("Tangent", 2, 2, 3, 1))
sketch7.addConstraint(Sketcher.Constraint("Tangent", 3, 2, 0, 1))
sketch7.addConstraint(Sketcher.Constraint("Tangent", 4, 2, 5, 1))
sketch7.addConstraint(Sketcher.Constraint("Tangent", 5, 2, 6, 1))
sketch7.addConstraint(Sketcher.Constraint("Tangent", 6, 2, 7, 1))
sketch7.addConstraint(Sketcher.Constraint("Tangent", 7, 2, 4, 1))
sketch7.addConstraint(Sketcher.Constraint("Vertical", 0))
sketch7.addConstraint(Sketcher.Constraint("Vertical", 2))
sketch7.addConstraint(Sketcher.Constraint("Vertical", 4))
sketch7.addConstraint(Sketcher.Constraint("Vertical", 6))
sketch7.addConstraint(Sketcher.Constraint("Equal", 3, 5))
sketch7.addConstraint(Sketcher.Constraint("PointOnObject", 5, 3, -2))
sketch7.addConstraint(Sketcher.Constraint("Equal", 2, 4))
sketch7.addConstraint(Sketcher.Constraint("Radius", 1, 1.65))
sketch7.addConstraint(Sketcher.Constraint("DistanceY", 0, 2, 0, 1, 8.35))
sketch7.addConstraint(Sketcher.Constraint("DistanceY", 1, 3, -1, 1, 24.2))
sketch7.addConstraint(Sketcher.Constraint("DistanceY", -1, 1, 5, 3, 27.3))
sketch7.addConstraint(Sketcher.Constraint("DistanceX", 1, 3, -1, 1, 23.825))
pocket5 = body.newObject("PartDesign::Pocket", "Pocket004")
pocket5.Profile = sketch7
pocket5.Length = 8.95
pocket5.Reversed = True
doc.recompute()

fillet = body.newObject("PartDesign::Fillet", "Fillet")
fillet.Base = (pocket5, edges_at(pocket5, [
    (-39.25, 5, 23.2),
    (-39.25, 5, -23.2),
    (27.25, 5, -23.2),
    (27.25, 5, 23.2),
    (-20.33, 2.5, -24.2),
    (-27.33, 2.5, -24.2),
    (-22.175, 3.025, -24.2),
    (-25.475, 3.025, -24.2),
    (-1.65, 3.025, 27.3),
    (1.65, 3.025, 27.3),
    (23, 2.5, 27.3),
    (16, 2.5, 27.3),
    (3.5, 2.5, 27.3),
    (-3.5, 2.5, 27.3),
    (-16, 2.5, 27.3),
    (-23, 2.5, 27.3),
]))
fillet.Radius = 0.5

# Sketch on XZ plane
sketch8 = body.newObject("Sketcher::SketchObject", "Sketch007")
sketch8.AttachmentSupport = (doc.getObject("XZ_Plane"), [""])
sketch8.MapMode = "FlatFace"
sketch8.AttachmentOffset = App.Placement(V(0, 0, -10), App.Rotation())
sketch8.addGeometry(Part.LineSegment(V(-21.2, 8.8, 0), V(-28.8, 8.8, 0)), False)
sketch8.addGeometry(Part.LineSegment(V(-28.8, 8.8, 0), V(-28.8, -8.8, 0)), False)
sketch8.addGeometry(Part.ArcOfCircle(Part.Circle(V(-27.3, -8.8, 0), V(0, 0, 1), 1.5), math.radians(180), math.radians(270)), False)
sketch8.addGeometry(Part.LineSegment(V(-27.2, -10.2, 0), V(-22.8, -10.2, 0)), False)
sketch8.addGeometry(Part.ArcOfCircle(Part.Circle(V(-22.7, -8.8, 0), V(0, 0, 1), 1.5), math.radians(-90), math.radians(0)), False)
sketch8.addGeometry(Part.LineSegment(V(-21.2, -8.8, 0), V(-21.2, -5.8, 0)), False)
sketch8.addGeometry(Part.ArcOfCircle(Part.Circle(V(-22.8, -5.8, 0), V(0, 0, 1), 1.5), math.radians(0), math.radians(180)), False)
sketch8.addGeometry(Part.LineSegment(V(-24.2, -5.8, 0), V(-24.2, -7.2, 0)), False)
sketch8.addGeometry(Part.LineSegment(V(-24.2, -7.2, 0), V(-25.8, -7.2, 0)), False)
sketch8.addGeometry(Part.LineSegment(V(-25.8, -7.2, 0), V(-25.8, 1.2, 0)), False)
sketch8.addGeometry(Part.LineSegment(V(-25.8, 1.2, 0), V(-24.2, 1.2, 0)), False)
sketch8.addGeometry(Part.LineSegment(V(-24.2, 1.2, 0), V(-24.2, -0.2, 0)), False)
sketch8.addGeometry(Part.ArcOfCircle(Part.Circle(V(-22.8, -0.2, 0), V(0, 0, 1), 1.5), math.radians(180), math.radians(360)), False)
sketch8.addGeometry(Part.LineSegment(V(-21.2, -0.2, 0), V(-21.2, 8.8, 0)), False)
sketch8.addConstraint(Sketcher.Constraint("Coincident", 0, 2, 1, 1))
sketch8.addConstraint(Sketcher.Constraint("Tangent", 1, 2, 2, 1))
sketch8.addConstraint(Sketcher.Constraint("Tangent", 2, 2, 3, 1))
sketch8.addConstraint(Sketcher.Constraint("Tangent", 3, 2, 4, 1))
sketch8.addConstraint(Sketcher.Constraint("Tangent", 4, 2, 5, 1))
sketch8.addConstraint(Sketcher.Constraint("Tangent", 5, 2, 6, 1))
sketch8.addConstraint(Sketcher.Constraint("Tangent", 6, 2, 7, 1))
sketch8.addConstraint(Sketcher.Constraint("Coincident", 7, 2, 8, 1))
sketch8.addConstraint(Sketcher.Constraint("Coincident", 8, 2, 9, 1))
sketch8.addConstraint(Sketcher.Constraint("Coincident", 9, 2, 10, 1))
sketch8.addConstraint(Sketcher.Constraint("Coincident", 10, 2, 11, 1))
sketch8.addConstraint(Sketcher.Constraint("Tangent", 11, 2, 12, 1))
sketch8.addConstraint(Sketcher.Constraint("Tangent", 12, 2, 13, 1))
sketch8.addConstraint(Sketcher.Constraint("Coincident", 13, 2, 0, 1))
sketch8.addConstraint(Sketcher.Constraint("Horizontal", 0))
sketch8.addConstraint(Sketcher.Constraint("Vertical", 1))
sketch8.addConstraint(Sketcher.Constraint("Horizontal", 3))
sketch8.addConstraint(Sketcher.Constraint("Vertical", 5))
sketch8.addConstraint(Sketcher.Constraint("Vertical", 7))
sketch8.addConstraint(Sketcher.Constraint("Horizontal", 8))
sketch8.addConstraint(Sketcher.Constraint("Vertical", 9))
sketch8.addConstraint(Sketcher.Constraint("Horizontal", 10))
sketch8.addConstraint(Sketcher.Constraint("Vertical", 11))
sketch8.addConstraint(Sketcher.Constraint("Vertical", 13))
sketch8.addConstraint(Sketcher.Constraint("Equal", 2, 4))
sketch8.addConstraint(Sketcher.Constraint("Equal", 4, 6))
sketch8.addConstraint(Sketcher.Constraint("Equal", 6, 12))
sketch8.addConstraint(Sketcher.Constraint("Symmetric", 4, 2, 13, 2, -1))
sketch8.addConstraint(Sketcher.Constraint("Equal", 10, 7))
sketch8.addConstraint(Sketcher.Constraint("Equal", 7, 11))
sketch8.addConstraint(Sketcher.Constraint("Radius", 2, 1.5))
sketch8.addConstraint(Sketcher.Constraint("DistanceY", 5, 1, 5, 2, 3.0))
sketch8.addConstraint(Sketcher.Constraint("DistanceY", 13, 1, 13, 2, 9.0))
sketch8.addConstraint(Sketcher.Constraint("DistanceX", 0, 2, 0, 1, 7.5))
sketch8.addConstraint(Sketcher.Constraint("DistanceX", 8, 2, 8, 1, 1.5))
sketch8.addConstraint(Sketcher.Constraint("DistanceY", 1, 2, 1, 1, 17.5))
sketch8.addConstraint(Sketcher.Constraint("DistanceX", 2, 3, -1, 1, 27.25))
pocket6 = body.newObject("PartDesign::Pocket", "Pocket005")
pocket6.Profile = sketch8
pocket6.Type = "ThroughAll"
pocket6.Reversed = True
doc.recompute()

fillet2 = body.newObject("PartDesign::Fillet", "Fillet001")
fillet2.Base = (pocket6, edges_at(pocket6, [(-25.75, 5, -7.25), (-25.75, 5, 1.25)]))
fillet2.Radius = 0.5
doc.recompute()

fillet3 = body.newObject("PartDesign::Fillet", "Fillet002")
fillet3.Base = (fillet2, edges_at(fillet2, [(-21.25, 5, 8.75), (-28.75, 5, 8.75)]))
fillet3.Radius = 1.5

doc.recompute()
